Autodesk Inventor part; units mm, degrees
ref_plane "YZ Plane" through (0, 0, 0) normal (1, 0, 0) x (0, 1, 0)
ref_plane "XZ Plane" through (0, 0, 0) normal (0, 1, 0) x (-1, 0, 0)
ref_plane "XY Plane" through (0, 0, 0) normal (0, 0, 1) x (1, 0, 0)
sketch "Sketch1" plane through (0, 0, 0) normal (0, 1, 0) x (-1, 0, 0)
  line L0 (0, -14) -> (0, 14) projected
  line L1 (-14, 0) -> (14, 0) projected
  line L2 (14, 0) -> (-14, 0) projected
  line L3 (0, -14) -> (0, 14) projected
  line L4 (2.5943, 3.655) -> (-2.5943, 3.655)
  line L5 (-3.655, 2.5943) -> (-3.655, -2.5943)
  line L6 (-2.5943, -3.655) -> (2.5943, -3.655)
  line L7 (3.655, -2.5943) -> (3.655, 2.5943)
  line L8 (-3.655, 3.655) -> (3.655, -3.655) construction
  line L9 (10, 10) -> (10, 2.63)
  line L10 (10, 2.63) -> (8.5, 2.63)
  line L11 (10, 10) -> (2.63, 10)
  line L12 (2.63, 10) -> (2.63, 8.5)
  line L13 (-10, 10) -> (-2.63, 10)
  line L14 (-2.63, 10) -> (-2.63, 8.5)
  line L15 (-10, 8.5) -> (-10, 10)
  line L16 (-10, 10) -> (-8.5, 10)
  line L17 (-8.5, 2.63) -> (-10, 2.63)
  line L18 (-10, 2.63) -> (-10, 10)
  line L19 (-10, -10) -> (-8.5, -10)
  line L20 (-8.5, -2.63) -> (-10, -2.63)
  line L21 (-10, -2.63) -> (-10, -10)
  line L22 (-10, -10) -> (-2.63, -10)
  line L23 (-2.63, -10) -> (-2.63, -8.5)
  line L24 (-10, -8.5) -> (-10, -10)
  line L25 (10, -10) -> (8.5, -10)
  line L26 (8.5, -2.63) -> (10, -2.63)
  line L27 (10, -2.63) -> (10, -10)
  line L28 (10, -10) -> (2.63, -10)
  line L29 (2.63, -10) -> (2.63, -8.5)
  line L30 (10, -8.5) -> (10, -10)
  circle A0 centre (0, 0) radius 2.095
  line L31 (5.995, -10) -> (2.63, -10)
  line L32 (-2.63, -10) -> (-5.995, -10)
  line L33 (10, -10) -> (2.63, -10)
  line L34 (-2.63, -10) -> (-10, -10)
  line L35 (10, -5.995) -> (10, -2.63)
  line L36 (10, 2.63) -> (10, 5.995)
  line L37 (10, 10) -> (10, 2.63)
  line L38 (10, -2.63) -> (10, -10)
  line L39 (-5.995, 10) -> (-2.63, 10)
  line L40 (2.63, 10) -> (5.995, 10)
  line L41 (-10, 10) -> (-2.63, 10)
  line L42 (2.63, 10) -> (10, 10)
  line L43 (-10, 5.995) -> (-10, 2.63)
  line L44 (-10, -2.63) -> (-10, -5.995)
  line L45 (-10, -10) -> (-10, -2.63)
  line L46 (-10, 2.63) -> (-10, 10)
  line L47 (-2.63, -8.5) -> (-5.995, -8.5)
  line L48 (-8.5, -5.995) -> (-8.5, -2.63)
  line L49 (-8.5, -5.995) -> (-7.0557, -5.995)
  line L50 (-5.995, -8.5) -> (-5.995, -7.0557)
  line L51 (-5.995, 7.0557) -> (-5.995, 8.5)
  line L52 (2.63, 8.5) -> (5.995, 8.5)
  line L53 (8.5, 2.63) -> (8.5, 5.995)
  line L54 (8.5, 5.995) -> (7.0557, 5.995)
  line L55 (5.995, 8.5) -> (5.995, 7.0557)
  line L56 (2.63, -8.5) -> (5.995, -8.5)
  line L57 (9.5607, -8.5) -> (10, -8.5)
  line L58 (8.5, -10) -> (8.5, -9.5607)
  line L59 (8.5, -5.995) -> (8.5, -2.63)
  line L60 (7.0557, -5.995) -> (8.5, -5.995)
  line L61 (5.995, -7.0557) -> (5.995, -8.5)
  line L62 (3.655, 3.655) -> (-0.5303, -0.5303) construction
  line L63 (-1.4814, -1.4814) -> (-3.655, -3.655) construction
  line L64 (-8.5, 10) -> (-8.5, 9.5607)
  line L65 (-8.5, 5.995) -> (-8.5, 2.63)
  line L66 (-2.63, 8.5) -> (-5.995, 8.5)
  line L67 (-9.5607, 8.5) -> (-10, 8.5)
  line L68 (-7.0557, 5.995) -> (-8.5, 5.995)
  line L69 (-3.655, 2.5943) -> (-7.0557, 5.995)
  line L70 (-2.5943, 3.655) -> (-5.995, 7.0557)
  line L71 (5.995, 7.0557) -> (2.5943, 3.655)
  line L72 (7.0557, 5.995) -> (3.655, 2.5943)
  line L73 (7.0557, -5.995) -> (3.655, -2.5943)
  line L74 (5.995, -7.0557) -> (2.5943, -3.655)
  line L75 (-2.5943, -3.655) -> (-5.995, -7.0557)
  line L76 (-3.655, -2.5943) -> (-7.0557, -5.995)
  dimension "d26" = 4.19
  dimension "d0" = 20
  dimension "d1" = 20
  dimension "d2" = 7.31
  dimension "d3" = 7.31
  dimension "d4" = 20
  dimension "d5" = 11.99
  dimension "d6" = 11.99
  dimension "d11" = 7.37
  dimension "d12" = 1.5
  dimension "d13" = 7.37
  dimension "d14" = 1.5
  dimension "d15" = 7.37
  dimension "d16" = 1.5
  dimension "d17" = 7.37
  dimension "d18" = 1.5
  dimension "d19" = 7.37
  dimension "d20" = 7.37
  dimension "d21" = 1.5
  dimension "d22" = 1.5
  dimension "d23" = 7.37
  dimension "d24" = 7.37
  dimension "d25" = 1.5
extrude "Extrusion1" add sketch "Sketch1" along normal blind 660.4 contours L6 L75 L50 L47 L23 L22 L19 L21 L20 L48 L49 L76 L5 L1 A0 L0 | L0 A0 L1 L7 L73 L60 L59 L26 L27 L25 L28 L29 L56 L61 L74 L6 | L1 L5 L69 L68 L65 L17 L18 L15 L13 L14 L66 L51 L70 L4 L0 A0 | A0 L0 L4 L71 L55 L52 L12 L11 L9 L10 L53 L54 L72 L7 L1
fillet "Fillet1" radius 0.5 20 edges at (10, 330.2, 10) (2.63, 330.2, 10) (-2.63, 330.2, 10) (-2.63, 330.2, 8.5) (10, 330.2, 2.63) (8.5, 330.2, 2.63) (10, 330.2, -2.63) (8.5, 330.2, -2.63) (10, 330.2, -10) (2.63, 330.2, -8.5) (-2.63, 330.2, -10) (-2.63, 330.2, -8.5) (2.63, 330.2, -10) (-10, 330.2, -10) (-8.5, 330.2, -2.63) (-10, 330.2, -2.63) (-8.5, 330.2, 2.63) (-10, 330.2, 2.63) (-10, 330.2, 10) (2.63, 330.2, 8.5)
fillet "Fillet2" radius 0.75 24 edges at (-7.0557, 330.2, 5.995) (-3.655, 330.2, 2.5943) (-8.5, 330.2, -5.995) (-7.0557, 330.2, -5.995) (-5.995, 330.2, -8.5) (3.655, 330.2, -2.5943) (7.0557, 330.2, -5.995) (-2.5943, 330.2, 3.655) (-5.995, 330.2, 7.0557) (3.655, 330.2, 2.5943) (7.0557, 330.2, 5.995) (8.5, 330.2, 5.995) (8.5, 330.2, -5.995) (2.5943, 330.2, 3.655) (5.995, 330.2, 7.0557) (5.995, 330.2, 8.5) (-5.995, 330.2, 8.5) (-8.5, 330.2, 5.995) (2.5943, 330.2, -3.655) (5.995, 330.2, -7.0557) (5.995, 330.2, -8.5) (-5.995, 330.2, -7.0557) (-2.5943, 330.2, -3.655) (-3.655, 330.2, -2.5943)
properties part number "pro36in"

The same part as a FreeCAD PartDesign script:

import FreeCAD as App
import Part
import Sketcher
from FreeCAD import Vector


def edges_at(feature, points):
    """Names of the edges that pass closest to the given points."""
    edges = feature.Shape.Edges
    near = lambda p: min(range(len(edges)), key=lambda i: edges[i].distToShape(Part.Vertex(*p))[0])
    return sorted({f"Edge{near(p) + 1}" for p in points})

doc = App.newDocument("Part")
params = doc.addObject("Spreadsheet::Sheet", "Params")
for row, (alias, value) in enumerate([
    ("sketch1_diameter", "4.19 mm"),
    ("sketch1_width", "1.5 mm"),
    ("sketch1_width2", "7.37 mm"),
    ("pad1_length", "660.4 mm"),
    ("fillet_radius", "0.5 mm"),
    ("fillet2_radius", "0.75 mm"),
], start=1):
    params.set(f"A{row}", alias)
    params.set(f"B{row}", "=" + value)
    params.setAlias(f"B{row}", alias)

body = doc.addObject("PartDesign::Body", "Body")

# Sketch on XZ plane
sketch1 = doc.addObject("Sketcher::SketchObject", "Sketch")
body.addObject(sketch1)
sketch1.AttachmentSupport = (doc.XZ_Plane, [""])
sketch1.MapMode = "FlatFace"
sketch1.addGeometry(Part.LineSegment(Vector(2.6, -3.7, 0), Vector(-2.6, -3.7, 0)), False)
sketch1.addGeometry(Part.LineSegment(Vector(-2.6, -3.7, 0), Vector(-6, -7.1, 0)), False)
sketch1.addGeometry(Part.LineSegment(Vector(-6, -7.1, 0), Vector(-6, -8.5, 0)), False)
sketch1.addGeometry(Part.LineSegment(Vector(-6, -8.5, 0), Vector(-2.6, -8.5, 0)), False)
sketch1.addGeometry(Part.LineSegment(Vector(-2.6, -8.5, 0), Vector(-2.6, -10, 0)), False)
sketch1.addGeometry(Part.LineSegment(Vector(-2.6, -10, 0), Vector(-10, -10, 0)), False)
sketch1.addGeometry(Part.LineSegment(Vector(-10, -10, 0), Vector(-10, -2.6, 0)), False)
sketch1.addGeometry(Part.LineSegment(Vector(-10, -2.6, 0), Vector(-8.5, -2.6, 0)), False)
sketch1.addGeometry(Part.LineSegment(Vector(-8.5, -2.6, 0), Vector(-8.5, -6, 0)), False)
sketch1.addGeometry(Part.LineSegment(Vector(-8.5, -6, 0), Vector(-7.1, -6, 0)), False)
sketch1.addGeometry(Part.LineSegment(Vector(-7.1, -6, 0), Vector(-3.7, -2.6, 0)), False)
sketch1.addGeometry(Part.LineSegment(Vector(-3.7, -2.6, 0), Vector(-3.7, 2.6, 0)), False)
sketch1.addGeometry(Part.LineSegment(Vector(-3.7, 2.6, 0), Vector(-7.1, 6, 0)), False)
sketch1.addGeometry(Part.LineSegment(Vector(-7.1, 6, 0), Vector(-8.5, 6, 0)), False)
sketch1.addGeometry(Part.LineSegment(Vector(-8.5, 6, 0), Vector(-8.5, 2.6, 0)), False)
sketch1.addGeometry(Part.LineSegment(Vector(-8.5, 2.6, 0), Vector(-10, 2.6, 0)), False)
sketch1.addGeometry(Part.LineSegment(Vector(-10, 2.6, 0), Vector(-10, 10, 0)), False)
sketch1.addGeometry(Part.LineSegment(Vector(-10, 10, 0), Vector(-2.6, 10, 0)), False)
sketch1.addGeometry(Part.LineSegment(Vector(-2.6, 10, 0), Vector(-2.6, 8.5, 0)), False)
sketch1.addGeometry(Part.LineSegment(Vector(-2.6, 8.5, 0), Vector(-6, 8.5, 0)), False)
sketch1.addGeometry(Part.LineSegment(Vector(-6, 8.5, 0), Vector(-6, 7.1, 0)), False)
sketch1.addGeometry(Part.LineSegment(Vector(-6, 7.1, 0), Vector(-2.6, 3.7, 0)), False)
sketch1.addGeometry(Part.LineSegment(Vector(-2.6, 3.7, 0), Vector(2.6, 3.7, 0)), False)
sketch1.addGeometry(Part.LineSegment(Vector(2.6, 3.7, 0), Vector(6, 7.1, 0)), False)
sketch1.addGeometry(Part.LineSegment(Vector(6, 7.1, 0), Vector(6, 8.5, 0)), False)
sketch1.addGeometry(Part.LineSegment(Vector(6, 8.5, 0), Vector(2.6, 8.5, 0)), False)
sketch1.addGeometry(Part.LineSegment(Vector(2.6, 8.5, 0), Vector(2.6, 10, 0)), False)
sketch1.addGeometry(Part.LineSegment(Vector(2.6, 10, 0), Vector(10, 10, 0)), False)
sketch1.addGeometry(Part.LineSegment(Vector(10, 10, 0), Vector(10, 2.6, 0)), False)
sketch1.addGeometry(Part.LineSegment(Vector(10, 2.6, 0), Vector(8.5, 2.6, 0)), False)
sketch1.addGeometry(Part.LineSegment(Vector(8.5, 2.6, 0), Vector(8.5, 6, 0)), False)
sketch1.addGeometry(Part.LineSegment(Vector(8.5, 6, 0), Vector(7.1, 6, 0)), False)
sketch1.addGeometry(Part.LineSegment(Vector(7.1, 6, 0), Vector(3.7, 2.6, 0)), False)
sketch1.addGeometry(Part.LineSegment(Vector(3.7, 2.6, 0), Vector(3.7, -2.6, 0)), False)
sketch1.addGeometry(Part.LineSegment(Vector(3.7, -2.6, 0), Vector(7.1, -6, 0)), False)
sketch1.addGeometry(Part.LineSegment(Vector(7.1, -6, 0), Vector(8.5, -6, 0)), False)
sketch1.addGeometry(Part.LineSegment(Vector(8.5, -6, 0), Vector(8.5, -2.6, 0)), False)
sketch1.addGeometry(Part.LineSegment(Vector(8.5, -2.6, 0), Vector(10, -2.6, 0)), False)
sketch1.addGeometry(Part.LineSegment(Vector(10, -2.6, 0), Vector(10, -10, 0)), False)
sketch1.addGeometry(Part.LineSegment(Vector(10, -10, 0), Vector(2.6, -10, 0)), False)
sketch1.addGeometry(Part.LineSegment(Vector(2.6, -10, 0), Vector(2.6, -8.5, 0)), False)
sketch1.addGeometry(Part.LineSegment(Vector(2.6, -8.5, 0), Vector(6, -8.5, 0)), False)
sketch1.addGeometry(Part.LineSegment(Vector(6, -8.5, 0), Vector(6, -7.1, 0)), False)
sketch1.addGeometry(Part.LineSegment(Vector(6, -7.1, 0), Vector(2.6, -3.7, 0)), False)
sketch1.addGeometry(Part.Circle(Vector(0, 0, 0), Vector(0, 0, 1), 2.1), False)
sketch1.addConstraint(Sketcher.Constraint("Coincident", 0, 2, 1, 1))
sketch1.addConstraint(Sketcher.Constraint("Coincident", 1, 2, 2, 1))
sketch1.addConstraint(Sketcher.Constraint("Coincident", 2, 2, 3, 1))
sketch1.addConstraint(Sketcher.Constraint("Coincident", 3, 2, 4, 1))
sketch1.addConstraint(Sketcher.Constraint("Coincident", 4, 2, 5, 1))
sketch1.addConstraint(Sketcher.Constraint("Coincident", 5, 2, 6, 1))
sketch1.addConstraint(Sketcher.Constraint("Coincident", 6, 2, 7, 1))
sketch1.addConstraint(Sketcher.Constraint("Coincident", 7, 2, 8, 1))
sketch1.addConstraint(Sketcher.Constraint("Coincident", 8, 2, 9, 1))
sketch1.addConstraint(Sketcher.Constraint("Coincident", 9, 2, 10, 1))
sketch1.addConstraint(Sketcher.Constraint("Coincident", 10, 2, 11, 1))
sketch1.addConstraint(Sketcher.Constraint("Coincident", 11, 2, 12, 1))
sketch1.addConstraint(Sketcher.Constraint("Coincident", 12, 2, 13, 1))
sketch1.addConstraint(Sketcher.Constraint("Coincident", 13, 2, 14, 1))
sketch1.addConstraint(Sketcher.Constraint("Coincident", 14, 2, 15, 1))
sketch1.addConstraint(Sketcher.Constraint("Coincident", 15, 2, 16, 1))
sketch1.addConstraint(Sketcher.Constraint("Coincident", 16, 2, 17, 1))
sketch1.addConstraint(Sketcher.Constraint("Coincident", 17, 2, 18, 1))
sketch1.addConstraint(Sketcher.Constraint("Coincident", 18, 2, 19, 1))
sketch1.addConstraint(Sketcher.Constraint("Coincident", 19, 2, 20, 1))
sketch1.addConstraint(Sketcher.Constraint("Coincident", 20, 2, 21, 1))
sketch1.addConstraint(Sketcher.Constraint("Coincident", 21, 2, 22, 1))
sketch1.addConstraint(Sketcher.Constraint("Coincident", 22, 2, 23, 1))
sketch1.addConstraint(Sketcher.Constraint("Coincident", 23, 2, 24, 1))
sketch1.addConstraint(Sketcher.Constraint("Coincident", 24, 2, 25, 1))
sketch1.addConstraint(Sketcher.Constraint("Coincident", 25, 2, 26, 1))
sketch1.addConstraint(Sketcher.Constraint("Coincident", 26, 2, 27, 1))
sketch1.addConstraint(Sketcher.Constraint("Coincident", 27, 2, 28, 1))
sketch1.addConstraint(Sketcher.Constraint("Coincident", 28, 2, 29, 1))
sketch1.addConstraint(Sketcher.Constraint("Coincident", 29, 2, 30, 1))
sketch1.addConstraint(Sketcher.Constraint("Coincident", 30, 2, 31, 1))
sketch1.addConstraint(Sketcher.Constraint("Coincident", 31, 2, 32, 1))
sketch1.addConstraint(Sketcher.Constraint("Coincident", 32, 2, 33, 1))
sketch1.addConstraint(Sketcher.Constraint("Coincident", 33, 2, 34, 1))
sketch1.addConstraint(Sketcher.Constraint("Coincident", 34, 2, 35, 1))
sketch1.addConstraint(Sketcher.Constraint("Coincident", 35, 2, 36, 1))
sketch1.addConstraint(Sketcher.Constraint("Coincident", 36, 2, 37, 1))
sketch1.addConstraint(Sketcher.Constraint("Coincident", 37, 2, 38, 1))
sketch1.addConstraint(Sketcher.Constraint("Coincident", 38, 2, 39, 1))
sketch1.addConstraint(Sketcher.Constraint("Coincident", 39, 2, 40, 1))
sketch1.addConstraint(Sketcher.Constraint("Coincident", 40, 2, 41, 1))
sketch1.addConstraint(Sketcher.Constraint("Coincident", 41, 2, 42, 1))
sketch1.addConstraint(Sketcher.Constraint("Coincident", 42, 2, 43, 1))
sketch1.addConstraint(Sketcher.Constraint("Coincident", 43, 2, 0, 1))
sketch1.addConstraint(Sketcher.Constraint("Horizontal", 0))
sketch1.addConstraint(Sketcher.Constraint("Vertical", 2))
sketch1.addConstraint(Sketcher.Constraint("Horizontal", 3))
sketch1.addConstraint(Sketcher.Constraint("Vertical", 4))
sketch1.addConstraint(Sketcher.Constraint("Horizontal", 5))
sketch1.addConstraint(Sketcher.Constraint("Vertical", 6))
sketch1.addConstraint(Sketcher.Constraint("Horizontal", 7))
sketch1.addConstraint(Sketcher.Constraint("Vertical", 8))
sketch1.addConstraint(Sketcher.Constraint("Horizontal", 9))
sketch1.addConstraint(Sketcher.Constraint("Vertical", 11))
sketch1.addConstraint(Sketcher.Constraint("Horizontal", 13))
sketch1.addConstraint(Sketcher.Constraint("Vertical", 14))
sketch1.addConstraint(Sketcher.Constraint("Horizontal", 15))
sketch1.addConstraint(Sketcher.Constraint("Vertical", 16))
sketch1.addConstraint(Sketcher.Constraint("Horizontal", 17))
sketch1.addConstraint(Sketcher.Constraint("Vertical", 18))
sketch1.addConstraint(Sketcher.Constraint("Horizontal", 19))
sketch1.addConstraint(Sketcher.Constraint("Vertical", 20))
sketch1.addConstraint(Sketcher.Constraint("Horizontal", 22))
sketch1.addConstraint(Sketcher.Constraint("Vertical", 24))
sketch1.addConstraint(Sketcher.Constraint("Horizontal", 25))
sketch1.addConstraint(Sketcher.Constraint("Vertical", 26))
sketch1.addConstraint(Sketcher.Constraint("Horizontal", 27))
sketch1.addConstraint(Sketcher.Constraint("Vertical", 28))
sketch1.addConstraint(Sketcher.Constraint("Horizontal", 29))
sketch1.addConstraint(Sketcher.Constraint("Vertical", 30))
sketch1.addConstraint(Sketcher.Constraint("Horizontal", 31))
sketch1.addConstraint(Sketcher.Constraint("Vertical", 33))
sketch1.addConstraint(Sketcher.Constraint("Horizontal", 35))
sketch1.addConstraint(Sketcher.Constraint("Vertical", 36))
sketch1.addConstraint(Sketcher.Constraint("Horizontal", 37))
sketch1.addConstraint(Sketcher.Constraint("Vertical", 38))
sketch1.addConstraint(Sketcher.Constraint("Horizontal", 39))
sketch1.addConstraint(Sketcher.Constraint("Vertical", 40))
sketch1.addConstraint(Sketcher.Constraint("Horizontal", 41))
sketch1.addConstraint(Sketcher.Constraint("Vertical", 42))
sketch1.addConstraint(Sketcher.Constraint("Coincident", 44, 3, -1, 1))
sketch1.addConstraint(Sketcher.Constraint("Symmetric", 0, 2, 22, 2, -1, 1))
sketch1.addConstraint(Sketcher.Constraint("Symmetric", 1, 2, 23, 2, -1, 1))
sketch1.addConstraint(Sketcher.Constraint("Symmetric", 3, 2, 25, 2, -1, 1))
sketch1.addConstraint(Sketcher.Constraint("Symmetric", 5, 2, 27, 2, -1, 1))
sketch1.addConstraint(Sketcher.Constraint("Symmetric", 7, 2, 29, 2, -1, 1))
sketch1.addConstraint(Sketcher.Constraint("Symmetric", 9, 2, 31, 2, -1, 1))
sketch1.addConstraint(Sketcher.Constraint("Symmetric", 10, 2, 32, 2, -1, 1))
sketch1.addConstraint(Sketcher.Constraint("Symmetric", 12, 2, 34, 2, -1, 1))
sketch1.addConstraint(Sketcher.Constraint("Symmetric", 14, 2, 36, 2, -1, 1))
sketch1.addConstraint(Sketcher.Constraint("Symmetric", 16, 2, 38, 2, -1, 1))
sketch1.addConstraint(Sketcher.Constraint("Symmetric", 18, 2, 40, 2, -1, 1))
sketch1.addConstraint(Sketcher.Constraint("Symmetric", 20, 2, 42, 2, -1, 1))
sketch1.addConstraint(Sketcher.Constraint("Symmetric", 20, 2, 23, 2, -2))
sketch1.addConstraint(Sketcher.Constraint("Symmetric", 18, 2, 25, 2, -2))
sketch1.addConstraint(Sketcher.Constraint("Symmetric", 16, 2, 27, 2, -2))
sketch1.addConstraint(Sketcher.Constraint("Symmetric", 14, 2, 29, 2, -2))
sketch1.addConstraint(Sketcher.Constraint("Symmetric", 12, 2, 31, 2, -2))
sketch1.addConstraint(Sketcher.Constraint("Parallel", 1, 10))
sketch1.addConstraint(Sketcher.Constraint("Perpendicular", 10, 12))
sketch1.addConstraint(Sketcher.Constraint("Parallel", 12, 21))
sketch1.addConstraint(Sketcher.Constraint("Perpendicular", 32, 34))
sketch1.addConstraint(Sketcher.Constraint("Parallel", 34, 43))
sketch1.addConstraint(Sketcher.Constraint("Horizontal", 11, 2, 32, 2))
sketch1.addConstraint(Sketcher.Constraint("Equal", 35, 2))
sketch1.addConstraint(Sketcher.Constraint("Equal", 37, 4))
sketch1.addConstraint(Sketcher.Constraint("Equal", 39, 6))
sketch1.addConstraint(Sketcher.Constraint("Equal", 41, 8))
sketch1.addConstraint(Sketcher.Constraint("Equal", 22, 11))
sketch1.addConstraint(Sketcher.Constraint("Equal", 1, 10))
sketch1.addConstraint(Sketcher.Constraint("Diameter", 44, 4.19))
sketch1.addConstraint(Sketcher.Constraint("DistanceX", 7, 1, 7, 2, 1.5))
sketch1.addConstraint(Sketcher.Constraint("DistanceX", 5, 2, 5, 1, 7.37))
sketch1.addConstraint(Sketcher.Constraint("DistanceY", 4, 2, -1, 1, 10.0))
sketch1.addConstraint(Sketcher.Constraint("DistanceX", 3, 1, 3, 2, 3.365))
sketch1.addConstraint(Sketcher.Constraint("DistanceX", 1, 2, 10, 2, 2.34))
sketch1.addConstraint(Sketcher.Constraint("DistanceX", 0, 2, 0, 1, 5.1886))
sketch1.setExpression("Constraints[110]", "Params.sketch1_diameter")
sketch1.setExpression("Constraints[111]", "Params.sketch1_width")
sketch1.setExpression("Constraints[112]", "Params.sketch1_width2")
pad1 = doc.addObject("PartDesign::Pad", "Pad")
body.addObject(pad1)
pad1.Profile = sketch1
pad1.setExpression("Length", "Params.pad1_length")
pad1.Reversed = True
doc.recompute()

fillet = doc.addObject("PartDesign::Fillet", "Fillet")
body.addObject(fillet)
fillet.Base = (pad1, edges_at(pad1, [
    (10, 330.2, 10),
    (2.63, 330.2, 10),
    (-2.63, 330.2, 10),
    (-2.63, 330.2, 8.5),
    (10, 330.2, 2.63),
    (8.5, 330.2, 2.63),
    (10, 330.2, -2.63),
    (8.5, 330.2, -2.63),
    (10, 330.2, -10),
    (2.63, 330.2, -8.5),
    (-2.63, 330.2, -10),
    (-2.63, 330.2, -8.5),
    (2.63, 330.2, -10),
    (-10, 330.2, -10),
    (-8.5, 330.2, -2.63),
    (-10, 330.2, -2.63),
    (-8.5, 330.2, 2.63),
    (-10, 330.2, 2.63),
    (-10, 330.2, 10),
    (2.63, 330.2, 8.5),
]))
fillet.setExpression("Radius", "Params.fillet_radius")
doc.recompute()

fillet2 = doc.addObject("PartDesign::Fillet", "Fillet001")
body.addObject(fillet2)
fillet2.Base = (fillet, edges_at(fillet, [
    (-7.056, 330.2, 5.995),
    (-3.655, 330.2, 2.594),
    (-8.5, 330.2, -5.995),
    (-7.056, 330.2, -5.995),
    (-5.995, 330.2, -8.5),
    (3.655, 330.2, -2.594),
    (7.056, 330.2, -5.995),
    (-2.594, 330.2, 3.655),
    (-5.995, 330.2, 7.056),
    (3.655, 330.2, 2.594),
    (7.056, 330.2, 5.995),
    (8.5, 330.2, 5.995),
    (8.5, 330.2, -5.995),
    (2.594, 330.2, 3.655),
    (5.995, 330.2, 7.056),
    (5.995, 330.2, 8.5),
    (-5.995, 330.2, 8.5),
    (-8.5, 330.2, 5.995),
    (2.594, 330.2, -3.655),
    (5.995, 330.2, -7.056),
    (5.995, 330.2, -8.5),
    (-5.995, 330.2, -7.056),
    (-2.594, 330.2, -3.655),
    (-3.655, 330.2, -2.594),
]))
fillet2.setExpression("Radius", "Params.fillet2_radius")

doc.recompute()
